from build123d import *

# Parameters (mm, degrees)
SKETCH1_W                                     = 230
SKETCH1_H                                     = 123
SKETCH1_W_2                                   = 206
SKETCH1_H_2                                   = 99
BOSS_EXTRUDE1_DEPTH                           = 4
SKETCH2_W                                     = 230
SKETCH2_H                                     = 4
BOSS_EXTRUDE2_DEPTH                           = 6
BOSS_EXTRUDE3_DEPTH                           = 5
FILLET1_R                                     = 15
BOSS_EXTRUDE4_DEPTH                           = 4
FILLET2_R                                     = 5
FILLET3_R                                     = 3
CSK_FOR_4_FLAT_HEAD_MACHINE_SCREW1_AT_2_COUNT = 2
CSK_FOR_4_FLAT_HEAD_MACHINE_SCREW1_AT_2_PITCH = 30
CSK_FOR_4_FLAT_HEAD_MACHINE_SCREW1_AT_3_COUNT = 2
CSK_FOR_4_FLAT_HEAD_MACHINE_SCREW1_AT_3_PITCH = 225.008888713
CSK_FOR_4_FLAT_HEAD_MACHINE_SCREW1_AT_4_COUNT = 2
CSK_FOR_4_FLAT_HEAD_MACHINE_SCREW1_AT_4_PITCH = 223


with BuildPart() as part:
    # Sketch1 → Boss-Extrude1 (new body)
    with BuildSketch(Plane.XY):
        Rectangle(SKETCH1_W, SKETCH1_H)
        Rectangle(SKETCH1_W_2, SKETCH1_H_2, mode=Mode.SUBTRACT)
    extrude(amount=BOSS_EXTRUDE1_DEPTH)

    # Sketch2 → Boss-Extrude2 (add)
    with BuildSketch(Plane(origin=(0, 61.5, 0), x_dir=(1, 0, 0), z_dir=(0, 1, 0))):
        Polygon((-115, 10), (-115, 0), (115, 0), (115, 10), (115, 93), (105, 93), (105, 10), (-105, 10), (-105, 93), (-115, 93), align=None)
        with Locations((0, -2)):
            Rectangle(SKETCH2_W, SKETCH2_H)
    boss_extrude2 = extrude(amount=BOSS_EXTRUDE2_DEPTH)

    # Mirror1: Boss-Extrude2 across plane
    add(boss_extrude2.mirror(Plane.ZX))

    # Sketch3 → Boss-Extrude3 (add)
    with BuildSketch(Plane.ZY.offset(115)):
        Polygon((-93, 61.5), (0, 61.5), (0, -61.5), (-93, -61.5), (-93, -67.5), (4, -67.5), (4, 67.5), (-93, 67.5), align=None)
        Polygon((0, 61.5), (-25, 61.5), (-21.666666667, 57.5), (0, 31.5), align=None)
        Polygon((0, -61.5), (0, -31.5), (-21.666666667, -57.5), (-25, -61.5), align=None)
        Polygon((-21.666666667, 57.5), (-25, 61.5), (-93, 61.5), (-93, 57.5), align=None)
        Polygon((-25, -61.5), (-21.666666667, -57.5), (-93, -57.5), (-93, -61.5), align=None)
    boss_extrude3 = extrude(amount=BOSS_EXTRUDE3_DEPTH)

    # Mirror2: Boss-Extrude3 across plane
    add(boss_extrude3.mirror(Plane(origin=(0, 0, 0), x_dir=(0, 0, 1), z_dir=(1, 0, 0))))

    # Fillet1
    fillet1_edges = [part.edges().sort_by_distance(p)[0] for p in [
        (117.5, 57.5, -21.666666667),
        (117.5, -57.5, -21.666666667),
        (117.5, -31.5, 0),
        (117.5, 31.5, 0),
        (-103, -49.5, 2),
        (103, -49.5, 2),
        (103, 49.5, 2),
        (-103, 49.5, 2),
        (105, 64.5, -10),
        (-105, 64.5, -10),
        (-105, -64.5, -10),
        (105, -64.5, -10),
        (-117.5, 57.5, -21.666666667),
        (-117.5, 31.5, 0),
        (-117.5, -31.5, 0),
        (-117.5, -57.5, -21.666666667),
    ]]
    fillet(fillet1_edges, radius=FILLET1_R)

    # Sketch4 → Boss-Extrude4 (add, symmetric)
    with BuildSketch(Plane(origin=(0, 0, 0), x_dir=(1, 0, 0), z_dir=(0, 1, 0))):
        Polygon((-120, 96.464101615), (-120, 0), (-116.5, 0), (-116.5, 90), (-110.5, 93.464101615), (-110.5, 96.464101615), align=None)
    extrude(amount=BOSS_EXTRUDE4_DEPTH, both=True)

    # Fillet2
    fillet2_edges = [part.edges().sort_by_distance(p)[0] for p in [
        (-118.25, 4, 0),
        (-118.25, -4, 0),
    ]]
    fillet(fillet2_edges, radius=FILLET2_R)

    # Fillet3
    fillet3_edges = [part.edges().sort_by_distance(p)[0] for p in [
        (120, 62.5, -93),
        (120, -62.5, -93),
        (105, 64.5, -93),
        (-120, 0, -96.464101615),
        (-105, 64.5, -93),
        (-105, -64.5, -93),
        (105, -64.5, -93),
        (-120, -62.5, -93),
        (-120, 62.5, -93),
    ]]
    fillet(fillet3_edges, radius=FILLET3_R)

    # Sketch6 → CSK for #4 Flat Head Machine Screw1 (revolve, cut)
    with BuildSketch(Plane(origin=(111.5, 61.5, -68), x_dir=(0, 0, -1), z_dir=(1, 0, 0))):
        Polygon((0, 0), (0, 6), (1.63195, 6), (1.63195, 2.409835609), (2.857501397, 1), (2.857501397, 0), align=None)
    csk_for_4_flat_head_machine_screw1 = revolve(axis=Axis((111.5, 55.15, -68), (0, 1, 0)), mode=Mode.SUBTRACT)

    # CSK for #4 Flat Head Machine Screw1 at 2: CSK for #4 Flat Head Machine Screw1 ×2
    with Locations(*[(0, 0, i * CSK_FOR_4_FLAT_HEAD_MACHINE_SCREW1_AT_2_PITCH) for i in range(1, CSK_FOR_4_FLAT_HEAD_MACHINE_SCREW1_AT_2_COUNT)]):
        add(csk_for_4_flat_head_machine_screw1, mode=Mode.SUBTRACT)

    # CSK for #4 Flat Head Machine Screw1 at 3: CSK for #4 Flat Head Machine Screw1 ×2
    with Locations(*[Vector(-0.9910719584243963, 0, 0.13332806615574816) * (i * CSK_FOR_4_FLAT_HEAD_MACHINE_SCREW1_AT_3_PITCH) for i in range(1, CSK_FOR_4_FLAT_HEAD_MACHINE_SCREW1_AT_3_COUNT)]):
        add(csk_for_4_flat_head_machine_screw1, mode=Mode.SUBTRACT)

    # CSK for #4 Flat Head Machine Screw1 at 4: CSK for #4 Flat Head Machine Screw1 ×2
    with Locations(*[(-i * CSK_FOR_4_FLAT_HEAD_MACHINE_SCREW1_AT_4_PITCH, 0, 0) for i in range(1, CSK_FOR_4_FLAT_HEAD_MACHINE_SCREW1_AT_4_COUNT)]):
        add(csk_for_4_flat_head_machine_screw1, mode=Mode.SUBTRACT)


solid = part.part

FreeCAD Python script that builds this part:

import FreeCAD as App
import Part
import Sketcher

V = App.Vector
Q = App.Units.Quantity


def edges_at(feature, points):
    """Names of the edges that pass closest to the given points."""
    edges = feature.Shape.Edges
    near = lambda p: min(range(len(edges)), key=lambda i: edges[i].distToShape(Part.Vertex(*p))[0])
    return sorted({f"Edge{near(p) + 1}" for p in points})


def add_polygon(sketch, points):
    """Adds a closed chain of lines whose ends are joined by coincident constraints."""
    first, n = sketch.GeometryCount, len(points)
    for a, b in zip(points, points[1:] + points[:1]):
        sketch.addGeometry(Part.LineSegment(App.Vector(*a, 0), App.Vector(*b, 0)), False)
    for i in range(n):
        sketch.addConstraint(Sketcher.Constraint("Coincident", first + i, 2, first + (i + 1) % n, 1))

doc = App.newDocument("Part")
body = doc.addObject("PartDesign::Body", "Body")

sketch1 = doc.addObject("Sketcher::SketchObject", "Sketch")
body.addObject(sketch1)
sketch1.AttachmentSupport = (doc.XY_Plane, [""])
sketch1.MapMode = "FlatFace"
add_polygon(sketch1, [(-115, 61.5), (-115, -61.5), (115, -61.5), (115, 61.5)])
add_polygon(sketch1, [(103, -49.5), (-103, -49.5), (-103, 49.5), (103, 49.5)])
sketch1.addConstraint([
    Sketcher.Constraint("Vertical", 0),
    Sketcher.Constraint("Horizontal", 1),
    Sketcher.Constraint("Vertical", 2),
    Sketcher.Constraint("Horizontal", 3),
    Sketcher.Constraint("Horizontal", 4),
    Sketcher.Constraint("Vertical", 5),
    Sketcher.Constraint("Horizontal", 6),
    Sketcher.Constraint("Vertical", 7),
    Sketcher.Constraint("Symmetric", 0, 2, 2, 2, -1, 1),
    Sketcher.Constraint("Symmetric", 4, 2, 6, 2, -1, 1),
    Sketcher.Constraint("DistanceX", 1, 1, 1, 2, 230.0),
    Sketcher.Constraint("DistanceX", 4, 2, 4, 1, 206.0),
    Sketcher.Constraint("DistanceY", 0, 2, 0, 1, 123.0),
    Sketcher.Constraint("DistanceY", 5, 1, 5, 2, 99.0),
])
pad1 = doc.addObject("PartDesign::Pad", "Pad")
body.addObject(pad1)
pad1.Profile = sketch1
pad1.Length = 4

sketch2 = doc.addObject("Sketcher::SketchObject", "Sketch001")
body.addObject(sketch2)
sketch2.AttachmentSupport = (doc.XZ_Plane, [""])
sketch2.MapMode = "FlatFace"
sketch2.AttachmentOffset = App.Placement(V(0, 0, -61.5), App.Rotation())
add_polygon(sketch2, [(115, -93), (105, -93), (105, -10), (-105, -10), (-105, -93), (-115, -93), (-115, 4), (115, 4)])
sketch2.addConstraint([
    Sketcher.Constraint("Horizontal", 0),
    Sketcher.Constraint("Vertical", 1),
    Sketcher.Constraint("Horizontal", 2),
    Sketcher.Constraint("Vertical", 3),
    Sketcher.Constraint("Horizontal", 4),
    Sketcher.Constraint("Vertical", 5),
    Sketcher.Constraint("Horizontal", 6),
    Sketcher.Constraint("Vertical", 7),
    Sketcher.Constraint("Symmetric", 0, 2, 3, 2, -2),
    Sketcher.Constraint("Equal", 0, 4),
    Sketcher.Constraint("DistanceX", 0, 2, 0, 1, 10.0),
    Sketcher.Constraint("DistanceX", 2, 2, 2, 1, 210.0),
    Sketcher.Constraint("DistanceY", 1, 1, 1, 2, 83.0),
    Sketcher.Constraint("DistanceY", 5, 1, 5, 2, 97.0),
    Sketcher.Constraint("DistanceY", 0, 2, -1, 1, 93.0),
])
pad2 = doc.addObject("PartDesign::Pad", "Pad001")
body.addObject(pad2)
pad2.Profile = sketch2
pad2.Length = 6
pad2.Reversed = True
doc.recompute()

mirrored = doc.addObject("PartDesign::Mirrored", "Mirrored")
body.addObject(mirrored)
mirrored.Originals = [pad2]
mirrored.MirrorPlane = (doc.XZ_Plane, [""])
body.Tip = mirrored

sketch3 = doc.addObject("Sketcher::SketchObject", "Sketch002")
body.addObject(sketch3)
sketch3.AttachmentSupport = (doc.YZ_Plane, [""])
sketch3.MapMode = "FlatFace"
sketch3.AttachmentOffset = App.Placement(V(0, 0, -115), App.Rotation())
add_polygon(sketch3, [(57.5, -21.666667), (31.5, 0), (-31.5, 0), (-57.5, -21.666667), (-57.5, -93), (-67.5, -93), (-67.5, 4), (67.5, 4), (67.5, -93), (57.5, -93)])
sketch3.addConstraint([
    Sketcher.Constraint("Horizontal", 1),
    Sketcher.Constraint("Vertical", 3),
    Sketcher.Constraint("Horizontal", 4),
    Sketcher.Constraint("Vertical", 5),
    Sketcher.Constraint("Horizontal", 6),
    Sketcher.Constraint("Vertical", 7),
    Sketcher.Constraint("Horizontal", 8),
    Sketcher.Constraint("Vertical", 9),
    Sketcher.Constraint("Symmetric", 0, 2, 1, 2, -1, 1),
    Sketcher.Constraint("Symmetric", 4, 2, 7, 2, -2),
    Sketcher.Constraint("Symmetric", 2, 2, 9, 2, -2),
    Sketcher.Constraint("DistanceX", 1, 2, 1, 1, 63.0),
    Sketcher.Constraint("DistanceX", 4, 2, 4, 1, 10.0),
    Sketcher.Constraint("DistanceX", 6, 1, 6, 2, 135.0),
    Sketcher.Constraint("DistanceY", 5, 1, 5, 2, 97.0),
    Sketcher.Constraint("DistanceY", 3, 2, -1, 1, 93.0),
    Sketcher.Constraint("DistanceY", 3, 2, 3, 1, 71.333333),
])
pad3 = doc.addObject("PartDesign::Pad", "Pad002")
body.addObject(pad3)
pad3.Profile = sketch3
pad3.Length = 5
pad3.Reversed = True
doc.recompute()

mirrored2 = doc.addObject("PartDesign::Mirrored", "Mirrored001")
body.addObject(mirrored2)
mirrored2.Originals = [pad3]
mirrored2.MirrorPlane = (doc.YZ_Plane, [""])
body.Tip = mirrored2
doc.recompute()

fillet = doc.addObject("PartDesign::Fillet", "Fillet")
body.addObject(fillet)
fillet.Base = (mirrored2, edges_at(mirrored2, [
    (117.5, 57.5, -21.667),
    (117.5, -57.5, -21.667),
    (117.5, -31.5, 0),
    (117.5, 31.5, 0),
    (-103, -49.5, 2),
    (103, -49.5, 2),
    (103, 49.5, 2),
    (-103, 49.5, 2),
    (105, 64.5, -10),
    (-105, 64.5, -10),
    (-105, -64.5, -10),
    (105, -64.5, -10),
    (-117.5, 57.5, -21.667),
    (-117.5, 31.5, 0),
    (-117.5, -31.5, 0),
    (-117.5, -57.5, -21.667),
]))
fillet.Radius = 15

sketch4 = doc.addObject("Sketcher::SketchObject", "Sketch003")
body.addObject(sketch4)
sketch4.AttachmentSupport = (doc.XZ_Plane, [""])
sketch4.MapMode = "FlatFace"
add_polygon(sketch4, [(-120, -96.464102), (-120, 0), (-116.5, 0), (-116.5, -90), (-110.5, -93.464102), (-110.5, -96.464102)])
sketch4.addConstraint([
    Sketcher.Constraint("Vertical", 0),
    Sketcher.Constraint("Horizontal", 1),
    Sketcher.Constraint("Vertical", 2),
    Sketcher.Constraint("Vertical", 4),
    Sketcher.Constraint("Horizontal", 5),
    Sketcher.Constraint("PointOnObject", 0, 2, -1),
    Sketcher.Constraint("DistanceY", 2, 2, 2, 1, 90.0),
    Sketcher.Constraint("DistanceY", 4, 2, 4, 1, 3.0),
    Sketcher.Constraint("Angle", 3, Q("-30 deg")),
    Sketcher.Constraint("DistanceX", 1, 1, 1, 2, 3.5),
    Sketcher.Constraint("DistanceX", 5, 2, 5, 1, 9.5),
    Sketcher.Constraint("DistanceX", 0, 2, -1, 1, 120.0),
])
pad4 = doc.addObject("PartDesign::Pad", "Pad003")
body.addObject(pad4)
pad4.Profile = sketch4
pad4.Length = 8
pad4.Midplane = True
doc.recompute()

fillet2 = doc.addObject("PartDesign::Fillet", "Fillet001")
body.addObject(fillet2)
fillet2.Base = (pad4, edges_at(pad4, [(-118.25, 4, 0), (-118.25, -4, 0)]))
fillet2.Radius = 5
doc.recompute()

fillet3 = doc.addObject("PartDesign::Fillet", "Fillet002")
body.addObject(fillet3)
fillet3.Base = (fillet2, edges_at(fillet2, [
    (120, 62.5, -93),
    (120, -62.5, -93),
    (105, 64.5, -93),
    (-120, 0, -96.464),
    (-105, 64.5, -93),
    (-105, -64.5, -93),
    (105, -64.5, -93),
    (-120, -62.5, -93),
    (-120, 62.5, -93),
]))
fillet3.Radius = 3

sketch5 = doc.addObject("Sketcher::SketchObject", "Sketch004")
body.addObject(sketch5)
sketch5.AttachmentSupport = (doc.YZ_Plane, [""])
sketch5.MapMode = "FlatFace"
sketch5.AttachmentOffset = App.Placement(V(0, 0, 111.5), App.Rotation())
add_polygon(sketch5, [(67.5, -68), (61.5, -68), (61.5, -70.857501), (62.5, -70.857501), (63.909836, -69.63195), (67.5, -69.63195)])
sketch5.addGeometry(Part.LineSegment(V(61.5, -68, 0), V(67.5, -68, 0)), True)
sketch5.addConstraint([
    Sketcher.Constraint("Horizontal", 0),
    Sketcher.Constraint("Vertical", 1),
    Sketcher.Constraint("Horizontal", 2),
    Sketcher.Constraint("Horizontal", 4),
    Sketcher.Constraint("Vertical", 5),
    Sketcher.Constraint("Horizontal", 6),
    Sketcher.Constraint("Coincident", 6, 1, 0, 2),
    Sketcher.Constraint("Vertical", 4, 2, 6, 2),
    Sketcher.Constraint("DistanceX", 0, 2, 0, 1, 6.0),
    Sketcher.Constraint("DistanceX", 2, 1, 2, 2, 1.0),
    Sketcher.Constraint("Angle", 3, Q("41 deg")),
    Sketcher.Constraint("DistanceY", 0, 2, -1, 1, 68.0),
    Sketcher.Constraint("DistanceX", -1, 1, 0, 2, 61.5),
    Sketcher.Constraint("DistanceY", 1, 2, 1, 1, 2.857501),
    Sketcher.Constraint("DistanceY", 5, 1, 5, 2, 1.63195),
])
groove = doc.addObject("PartDesign::Groove", "Groove")
body.addObject(groove)
groove.Profile = sketch5
groove.ReferenceAxis = (sketch5, ["Axis0"])
groove.Angle = 360
doc.recompute()

linearpattern = doc.addObject("PartDesign::LinearPattern", "LinearPattern")
body.addObject(linearpattern)
linearpattern.Originals = [groove]
linearpattern.Direction = (doc.Z_Axis, [""])
linearpattern.Mode = "offset"
linearpattern.Offset = 30
linearpattern.Occurrences = 2
body.Tip = linearpattern
doc.recompute()

datumline = doc.addObject("PartDesign::Line", "DatumLine")
body.addObject(datumline)
datumline.Placement = App.Placement(V(0, 0, 0), App.Rotation(V(0, 0, 1), V(-0.991071958, 0, 0.133328066)))
linearpattern2 = doc.addObject("PartDesign::LinearPattern", "LinearPattern001")
body.addObject(linearpattern2)
linearpattern2.Originals = [groove]
linearpattern2.Direction = (datumline, [""])
linearpattern2.Mode = "offset"
linearpattern2.Offset = 225.008889
linearpattern2.Occurrences = 2
body.Tip = linearpattern2
doc.recompute()

linearpattern3 = doc.addObject("PartDesign::LinearPattern", "LinearPattern002")
body.addObject(linearpattern3)
linearpattern3.Originals = [groove]
linearpattern3.Direction = (doc.X_Axis, [""])
linearpattern3.Mode = "offset"
linearpattern3.Offset = 223
linearpattern3.Occurrences = 2
linearpattern3.Reversed = True
body.Tip = linearpattern3

doc.recompute()
